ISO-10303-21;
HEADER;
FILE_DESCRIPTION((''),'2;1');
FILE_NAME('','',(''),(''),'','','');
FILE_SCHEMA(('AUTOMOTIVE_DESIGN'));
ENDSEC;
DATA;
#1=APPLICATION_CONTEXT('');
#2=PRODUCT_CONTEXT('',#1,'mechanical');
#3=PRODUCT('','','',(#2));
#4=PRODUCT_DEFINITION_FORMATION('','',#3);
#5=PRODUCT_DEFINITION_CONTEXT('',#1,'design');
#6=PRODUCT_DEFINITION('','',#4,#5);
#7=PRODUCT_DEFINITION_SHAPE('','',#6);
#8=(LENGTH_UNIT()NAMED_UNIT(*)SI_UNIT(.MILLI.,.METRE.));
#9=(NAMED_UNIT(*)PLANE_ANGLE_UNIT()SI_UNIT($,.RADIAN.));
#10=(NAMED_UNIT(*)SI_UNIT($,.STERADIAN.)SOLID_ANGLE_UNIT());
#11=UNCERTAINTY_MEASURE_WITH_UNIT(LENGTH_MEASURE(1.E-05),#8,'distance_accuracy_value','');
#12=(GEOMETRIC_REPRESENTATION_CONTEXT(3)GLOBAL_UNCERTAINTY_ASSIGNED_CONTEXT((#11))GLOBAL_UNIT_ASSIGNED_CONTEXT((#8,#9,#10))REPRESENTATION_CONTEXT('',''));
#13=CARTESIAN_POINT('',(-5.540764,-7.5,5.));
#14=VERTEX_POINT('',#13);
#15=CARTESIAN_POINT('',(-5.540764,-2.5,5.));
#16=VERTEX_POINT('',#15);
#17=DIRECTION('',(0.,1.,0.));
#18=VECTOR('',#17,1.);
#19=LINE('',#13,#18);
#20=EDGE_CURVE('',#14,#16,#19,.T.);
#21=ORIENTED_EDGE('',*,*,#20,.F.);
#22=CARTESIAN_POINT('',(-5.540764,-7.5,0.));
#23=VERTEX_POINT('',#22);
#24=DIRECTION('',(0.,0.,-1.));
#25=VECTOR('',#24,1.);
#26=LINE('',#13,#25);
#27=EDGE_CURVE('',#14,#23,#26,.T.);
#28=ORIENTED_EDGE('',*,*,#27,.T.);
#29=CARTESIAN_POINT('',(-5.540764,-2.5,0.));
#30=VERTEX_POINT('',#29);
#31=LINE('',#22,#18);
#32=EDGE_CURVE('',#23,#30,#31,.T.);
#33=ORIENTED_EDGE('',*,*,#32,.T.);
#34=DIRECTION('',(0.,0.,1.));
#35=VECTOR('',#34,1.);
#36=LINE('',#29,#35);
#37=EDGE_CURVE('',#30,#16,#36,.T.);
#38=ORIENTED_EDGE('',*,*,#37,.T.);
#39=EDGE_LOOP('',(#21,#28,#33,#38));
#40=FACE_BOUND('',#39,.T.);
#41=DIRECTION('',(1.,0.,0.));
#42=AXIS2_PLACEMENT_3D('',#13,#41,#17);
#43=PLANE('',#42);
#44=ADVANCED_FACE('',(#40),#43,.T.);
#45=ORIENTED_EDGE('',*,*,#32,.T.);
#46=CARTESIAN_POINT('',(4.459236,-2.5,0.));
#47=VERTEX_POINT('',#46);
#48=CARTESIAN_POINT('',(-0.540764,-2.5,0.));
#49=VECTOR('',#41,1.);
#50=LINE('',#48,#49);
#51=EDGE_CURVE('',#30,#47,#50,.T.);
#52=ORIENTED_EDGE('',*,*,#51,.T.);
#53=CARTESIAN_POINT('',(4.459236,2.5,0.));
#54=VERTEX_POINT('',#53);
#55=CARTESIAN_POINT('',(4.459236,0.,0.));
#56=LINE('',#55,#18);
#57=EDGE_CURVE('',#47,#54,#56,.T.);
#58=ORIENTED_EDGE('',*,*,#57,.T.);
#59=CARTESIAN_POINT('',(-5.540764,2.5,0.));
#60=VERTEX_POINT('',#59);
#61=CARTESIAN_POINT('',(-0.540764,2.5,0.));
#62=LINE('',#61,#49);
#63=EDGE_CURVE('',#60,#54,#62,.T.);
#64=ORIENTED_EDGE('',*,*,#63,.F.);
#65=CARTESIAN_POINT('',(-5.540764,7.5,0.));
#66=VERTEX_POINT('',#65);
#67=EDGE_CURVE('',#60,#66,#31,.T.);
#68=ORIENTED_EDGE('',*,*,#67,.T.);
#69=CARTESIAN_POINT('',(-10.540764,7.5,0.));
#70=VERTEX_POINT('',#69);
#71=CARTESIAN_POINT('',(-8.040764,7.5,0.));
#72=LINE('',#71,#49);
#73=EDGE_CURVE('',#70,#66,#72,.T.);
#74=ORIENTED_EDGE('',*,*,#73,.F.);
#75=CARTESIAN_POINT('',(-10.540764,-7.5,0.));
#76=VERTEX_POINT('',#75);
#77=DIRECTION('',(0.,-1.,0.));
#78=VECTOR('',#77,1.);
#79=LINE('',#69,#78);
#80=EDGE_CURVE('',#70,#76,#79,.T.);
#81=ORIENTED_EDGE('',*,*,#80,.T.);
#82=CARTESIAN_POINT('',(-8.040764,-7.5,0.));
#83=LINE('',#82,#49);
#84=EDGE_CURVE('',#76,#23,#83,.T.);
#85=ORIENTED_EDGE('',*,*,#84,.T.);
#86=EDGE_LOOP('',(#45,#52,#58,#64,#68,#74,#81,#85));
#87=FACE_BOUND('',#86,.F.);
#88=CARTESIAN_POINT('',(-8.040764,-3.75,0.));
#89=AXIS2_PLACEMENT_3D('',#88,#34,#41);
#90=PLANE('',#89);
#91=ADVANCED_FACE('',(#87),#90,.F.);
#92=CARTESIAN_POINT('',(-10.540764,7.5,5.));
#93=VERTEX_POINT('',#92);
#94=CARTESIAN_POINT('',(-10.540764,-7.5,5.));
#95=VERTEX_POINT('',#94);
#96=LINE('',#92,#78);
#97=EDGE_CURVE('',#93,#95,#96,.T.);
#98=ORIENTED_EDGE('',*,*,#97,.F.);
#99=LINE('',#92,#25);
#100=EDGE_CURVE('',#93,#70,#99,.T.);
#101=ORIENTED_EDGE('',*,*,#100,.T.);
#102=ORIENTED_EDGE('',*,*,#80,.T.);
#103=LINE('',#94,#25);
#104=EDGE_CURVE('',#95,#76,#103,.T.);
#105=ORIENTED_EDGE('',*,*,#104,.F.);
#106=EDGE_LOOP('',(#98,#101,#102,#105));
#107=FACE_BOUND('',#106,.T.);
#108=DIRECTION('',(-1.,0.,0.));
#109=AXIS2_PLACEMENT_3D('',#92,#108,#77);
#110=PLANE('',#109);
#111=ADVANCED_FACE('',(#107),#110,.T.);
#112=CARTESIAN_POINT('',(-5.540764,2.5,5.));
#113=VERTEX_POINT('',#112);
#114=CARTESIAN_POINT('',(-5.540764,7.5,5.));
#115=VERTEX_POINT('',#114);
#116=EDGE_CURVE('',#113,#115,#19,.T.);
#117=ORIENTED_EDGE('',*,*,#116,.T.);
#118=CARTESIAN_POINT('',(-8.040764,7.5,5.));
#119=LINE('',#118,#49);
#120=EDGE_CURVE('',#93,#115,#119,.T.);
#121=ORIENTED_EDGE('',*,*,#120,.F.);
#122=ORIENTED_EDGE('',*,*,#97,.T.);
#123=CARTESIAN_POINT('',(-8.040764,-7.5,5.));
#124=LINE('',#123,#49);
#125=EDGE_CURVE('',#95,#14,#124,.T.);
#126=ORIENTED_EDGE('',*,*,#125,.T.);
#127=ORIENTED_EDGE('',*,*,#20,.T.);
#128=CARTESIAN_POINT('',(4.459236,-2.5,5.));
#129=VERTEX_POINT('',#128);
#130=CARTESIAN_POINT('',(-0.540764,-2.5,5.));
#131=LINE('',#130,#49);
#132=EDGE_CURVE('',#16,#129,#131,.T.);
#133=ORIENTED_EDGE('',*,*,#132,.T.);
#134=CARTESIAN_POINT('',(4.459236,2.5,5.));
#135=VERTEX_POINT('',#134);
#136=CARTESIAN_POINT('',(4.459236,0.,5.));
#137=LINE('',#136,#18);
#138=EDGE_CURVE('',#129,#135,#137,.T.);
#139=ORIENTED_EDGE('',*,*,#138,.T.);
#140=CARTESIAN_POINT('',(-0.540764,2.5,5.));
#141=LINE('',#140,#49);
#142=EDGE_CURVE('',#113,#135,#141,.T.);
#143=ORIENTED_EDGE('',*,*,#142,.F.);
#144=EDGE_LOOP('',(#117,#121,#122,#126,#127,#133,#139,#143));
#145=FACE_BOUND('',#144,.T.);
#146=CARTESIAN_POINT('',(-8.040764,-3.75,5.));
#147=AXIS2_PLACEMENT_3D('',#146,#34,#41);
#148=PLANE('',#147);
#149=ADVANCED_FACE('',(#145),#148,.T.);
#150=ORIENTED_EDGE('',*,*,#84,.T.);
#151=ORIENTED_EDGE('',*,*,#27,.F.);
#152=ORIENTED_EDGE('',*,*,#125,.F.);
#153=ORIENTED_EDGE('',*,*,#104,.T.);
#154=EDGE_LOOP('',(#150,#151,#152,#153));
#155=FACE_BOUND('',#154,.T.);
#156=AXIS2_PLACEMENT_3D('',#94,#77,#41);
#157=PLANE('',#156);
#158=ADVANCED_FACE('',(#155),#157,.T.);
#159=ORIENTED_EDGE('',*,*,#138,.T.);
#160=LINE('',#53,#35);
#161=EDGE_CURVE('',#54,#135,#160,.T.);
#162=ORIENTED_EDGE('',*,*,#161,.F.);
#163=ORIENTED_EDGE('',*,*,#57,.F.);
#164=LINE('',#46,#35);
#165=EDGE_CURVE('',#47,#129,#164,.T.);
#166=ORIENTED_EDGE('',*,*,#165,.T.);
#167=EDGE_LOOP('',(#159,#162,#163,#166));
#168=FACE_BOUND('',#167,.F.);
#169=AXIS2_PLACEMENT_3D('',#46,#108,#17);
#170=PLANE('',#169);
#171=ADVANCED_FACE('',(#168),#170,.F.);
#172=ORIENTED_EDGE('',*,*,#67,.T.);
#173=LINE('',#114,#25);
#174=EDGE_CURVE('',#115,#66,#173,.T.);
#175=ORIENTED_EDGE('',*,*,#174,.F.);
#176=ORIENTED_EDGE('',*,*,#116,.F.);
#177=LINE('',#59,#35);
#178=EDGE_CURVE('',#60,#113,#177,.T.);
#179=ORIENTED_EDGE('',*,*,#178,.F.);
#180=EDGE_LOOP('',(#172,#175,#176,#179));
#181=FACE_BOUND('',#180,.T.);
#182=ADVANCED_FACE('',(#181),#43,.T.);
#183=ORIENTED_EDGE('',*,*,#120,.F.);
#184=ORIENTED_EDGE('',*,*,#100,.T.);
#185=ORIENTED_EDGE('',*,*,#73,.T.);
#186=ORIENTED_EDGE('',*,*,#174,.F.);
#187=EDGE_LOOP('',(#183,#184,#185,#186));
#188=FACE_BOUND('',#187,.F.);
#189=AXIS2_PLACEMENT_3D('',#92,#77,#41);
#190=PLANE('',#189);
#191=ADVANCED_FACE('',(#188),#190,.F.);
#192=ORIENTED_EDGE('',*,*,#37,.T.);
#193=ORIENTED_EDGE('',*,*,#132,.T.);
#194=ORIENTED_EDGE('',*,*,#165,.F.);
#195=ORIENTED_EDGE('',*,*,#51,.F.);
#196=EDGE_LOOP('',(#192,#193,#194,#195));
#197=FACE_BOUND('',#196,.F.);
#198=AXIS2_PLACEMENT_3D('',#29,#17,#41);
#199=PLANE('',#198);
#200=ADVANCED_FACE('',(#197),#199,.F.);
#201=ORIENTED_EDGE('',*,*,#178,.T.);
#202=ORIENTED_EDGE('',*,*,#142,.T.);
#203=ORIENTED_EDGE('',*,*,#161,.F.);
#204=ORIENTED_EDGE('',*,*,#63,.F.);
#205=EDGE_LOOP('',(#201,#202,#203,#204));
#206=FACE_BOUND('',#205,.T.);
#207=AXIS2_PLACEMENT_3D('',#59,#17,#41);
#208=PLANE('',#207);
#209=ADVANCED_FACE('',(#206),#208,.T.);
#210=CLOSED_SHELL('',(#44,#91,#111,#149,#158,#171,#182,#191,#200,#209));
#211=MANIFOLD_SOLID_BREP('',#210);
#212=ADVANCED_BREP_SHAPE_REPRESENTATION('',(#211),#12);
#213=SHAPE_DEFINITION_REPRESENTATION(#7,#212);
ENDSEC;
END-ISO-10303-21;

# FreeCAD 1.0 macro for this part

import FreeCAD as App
import Part
import Sketcher
Q = App.Units.Quantity


def add_polygon(sketch, points):
    """Adds a closed chain of lines whose ends are joined by coincident constraints."""
    first, n = sketch.GeometryCount, len(points)
    for a, b in zip(points, points[1:] + points[:1]):
        sketch.addGeometry(Part.LineSegment(App.Vector(*a, 0), App.Vector(*b, 0)), False)
    for i in range(n):
        sketch.addConstraint(Sketcher.Constraint("Coincident", first + i, 2, first + (i + 1) % n, 1))

doc = App.newDocument("Part")
body = doc.addObject("PartDesign::Body", "Body")

# Sketch on XY plane
sketch1 = body.newObject("Sketcher::SketchObject", "Sketch")
sketch1.AttachmentSupport = (doc.getObject("XY_Plane"), [""])
sketch1.MapMode = "FlatFace"
add_polygon(sketch1, [(-6, 2), (-6, -2), (4, -2), (4, 2)])  # lines 0-3
sketch1.addConstraint([
    Sketcher.Constraint("Vertical", 0),
    Sketcher.Constraint("Horizontal", 1),
    Sketcher.Constraint("Vertical", 2),
    Sketcher.Constraint("Horizontal", 3),
    Sketcher.Constraint("DistanceX", 1, 1, 1, 2, Q("10 mm")),
    Sketcher.Constraint("DistanceY", 0, 2, 0, 1, Q("5 mm")),
    Sketcher.Constraint("DistanceY", 0, 2, -1, 1, Q("2.5 mm")),
    Sketcher.Constraint("DistanceX", 0, 2, -1, 1, Q("5.540764 mm")),
])
pad1 = body.newObject("PartDesign::Pad", "Pad")
pad1.Profile = sketch1
pad1.Length = 5

# Sketch on XY plane
sketch2 = body.newObject("Sketcher::SketchObject", "Sketch001")
sketch2.AttachmentSupport = (doc.getObject("XY_Plane"), [""])
sketch2.MapMode = "FlatFace"
sketch2.AttachmentOffset = App.Placement(App.Vector(0, 0, 5), App.Rotation())
add_polygon(sketch2, [(-10.5, -7.5), (-5.5, -7.5), (-5.5, 7.5), (-10.5, 7.5)])  # lines 0-3
sketch2.addConstraint([
    Sketcher.Constraint("Horizontal", 0),
    Sketcher.Constraint("Vertical", 1),
    Sketcher.Constraint("Horizontal", 2),
    Sketcher.Constraint("Vertical", 3),
    Sketcher.Constraint("DistanceX", 0, 1, 0, 2, Q("5 mm")),
    Sketcher.Constraint("DistanceY", 1, 1, 1, 2, Q("15 mm")),
    Sketcher.Constraint("DistanceY", 0, 2, -1, 1, Q("7.5 mm")),
    Sketcher.Constraint("DistanceX", 0, 2, -1, 1, Q("5.540764 mm")),
])
pad2 = body.newObject("PartDesign::Pad", "Pad001")
pad2.Profile = sketch2
pad2.Length = 5
pad2.Reversed = True

doc.recompute()
